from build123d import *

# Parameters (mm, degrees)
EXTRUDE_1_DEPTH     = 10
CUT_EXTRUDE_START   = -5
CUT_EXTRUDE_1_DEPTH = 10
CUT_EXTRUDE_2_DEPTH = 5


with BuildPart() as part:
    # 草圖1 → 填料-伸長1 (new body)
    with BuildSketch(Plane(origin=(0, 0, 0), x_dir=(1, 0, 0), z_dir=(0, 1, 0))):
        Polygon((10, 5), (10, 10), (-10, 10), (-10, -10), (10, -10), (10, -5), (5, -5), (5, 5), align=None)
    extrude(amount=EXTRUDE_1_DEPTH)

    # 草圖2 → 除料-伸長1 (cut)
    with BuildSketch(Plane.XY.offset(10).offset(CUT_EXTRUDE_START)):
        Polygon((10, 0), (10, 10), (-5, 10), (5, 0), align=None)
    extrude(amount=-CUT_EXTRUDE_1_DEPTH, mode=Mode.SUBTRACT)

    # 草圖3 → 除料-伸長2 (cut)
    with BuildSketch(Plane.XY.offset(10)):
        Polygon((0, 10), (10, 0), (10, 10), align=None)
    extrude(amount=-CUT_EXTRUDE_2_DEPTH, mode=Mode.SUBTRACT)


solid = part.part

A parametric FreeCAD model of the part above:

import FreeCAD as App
import Part
import Sketcher

V = App.Vector

doc = App.newDocument("Part")
params = doc.addObject("Spreadsheet::Sheet", "Params")
for row, (alias, value) in enumerate([
    ("sketch1_width", "20 mm"),
    ("sketch1_width2", "5 mm"),
    ("pad1_length", "10 mm"),
    ("sketch2_width", "15 mm"),
    ("sketch2_width2", "5 mm"),
    ("sketch2_height", "10 mm"),
    ("pocket1_length", "10 mm"),
    ("sketch3_width", "10 mm"),
    ("pocket2_length", "5 mm"),
], start=1):
    params.set(f"A{row}", alias)
    params.set(f"B{row}", "=" + value)
    params.setAlias(f"B{row}", alias)

body = doc.addObject("PartDesign::Body", "Body")

# Sketch on XZ plane
sketch1 = body.newObject("Sketcher::SketchObject", "Sketch")
sketch1.AttachmentSupport = (doc.getObject("XZ_Plane"), [""])
sketch1.MapMode = "FlatFace"
sketch1.addGeometry([
    Part.LineSegment(V(10, -5, 0), V(10, -10, 0)),  # 0
    Part.LineSegment(V(10, -10, 0), V(-10, -10, 0)),  # 1
    Part.LineSegment(V(-10, -10, 0), V(-10, 10, 0)),  # 2
    Part.LineSegment(V(-10, 10, 0), V(10, 10, 0)),  # 3
    Part.LineSegment(V(10, 10, 0), V(10, 5, 0)),  # 4
    Part.LineSegment(V(10, 5, 0), V(5, 5, 0)),  # 5
    Part.LineSegment(V(5, 5, 0), V(5, -5, 0)),  # 6
    Part.LineSegment(V(5, -5, 0), V(10, -5, 0)),  # 7
], False)
sketch1.addConstraint([
    Sketcher.Constraint("Coincident", 0, 2, 1, 1),
    Sketcher.Constraint("Coincident", 1, 2, 2, 1),
    Sketcher.Constraint("Coincident", 2, 2, 3, 1),
    Sketcher.Constraint("Coincident", 3, 2, 4, 1),
    Sketcher.Constraint("Coincident", 4, 2, 5, 1),
    Sketcher.Constraint("Coincident", 5, 2, 6, 1),
    Sketcher.Constraint("Coincident", 6, 2, 7, 1),
    Sketcher.Constraint("Coincident", 7, 2, 0, 1),
    Sketcher.Constraint("Vertical", 0),
    Sketcher.Constraint("Horizontal", 1),
    Sketcher.Constraint("Vertical", 2),
    Sketcher.Constraint("Horizontal", 3),
    Sketcher.Constraint("Vertical", 4),
    Sketcher.Constraint("Horizontal", 5),
    Sketcher.Constraint("Vertical", 6),
    Sketcher.Constraint("Horizontal", 7),
    Sketcher.Constraint("Symmetric", 0, 2, 2, 2, -1, 1),
    Sketcher.Constraint("Symmetric", 4, 2, 7, 2, -1),
    Sketcher.Constraint("Equal", 7, 0),
    Sketcher.Constraint("Equal", 3, 2),
    Sketcher.Constraint("DistanceX", 1, 2, 1, 1, 20.0),
    Sketcher.Constraint("DistanceX", 5, 2, 5, 1, 5.0),
])
sketch1.setExpression("Constraints[20]", "Params.sketch1_width")
sketch1.setExpression("Constraints[21]", "Params.sketch1_width2")
pad1 = body.newObject("PartDesign::Pad", "Pad")
pad1.Profile = sketch1
pad1.setExpression("Length", "Params.pad1_length")
pad1.Reversed = True

# Sketch on XY plane
sketch2 = body.newObject("Sketcher::SketchObject", "Sketch001")
sketch2.AttachmentSupport = (doc.getObject("XY_Plane"), [""])
sketch2.MapMode = "FlatFace"
sketch2.AttachmentOffset = App.Placement(V(0, 0, 5), App.Rotation())
sketch2.addGeometry([
    Part.LineSegment(V(10, 0, 0), V(10, 10, 0)),
    Part.LineSegment(V(10, 10, 0), V(-5, 10, 0)),
    Part.LineSegment(V(-5, 10, 0), V(5, 0, 0)),
    Part.LineSegment(V(5, 0, 0), V(10, 0, 0)),
], False)
sketch2.addConstraint([
    Sketcher.Constraint("Coincident", 0, 2, 1, 1),
    Sketcher.Constraint("Coincident", 1, 2, 2, 1),
    Sketcher.Constraint("Coincident", 2, 2, 3, 1),
    Sketcher.Constraint("Coincident", 3, 2, 0, 1),
    Sketcher.Constraint("Vertical", 0),
    Sketcher.Constraint("Horizontal", 1),
    Sketcher.Constraint("Horizontal", 3),
    Sketcher.Constraint("PointOnObject", 2, 2, -1),
    Sketcher.Constraint("DistanceX", 1, 2, 1, 1, 15.0),
    Sketcher.Constraint("DistanceX", 3, 1, 3, 2, 5.0),
    Sketcher.Constraint("DistanceY", 0, 1, 0, 2, 10.0),
    Sketcher.Constraint("DistanceX", -1, 1, 0, 2, 10.0),
])
sketch2.setExpression("Constraints[8]", "Params.sketch2_width")
sketch2.setExpression("Constraints[9]", "Params.sketch2_width2")
sketch2.setExpression("Constraints[10]", "Params.sketch2_height")
pocket1 = body.newObject("PartDesign::Pocket", "Pocket")
pocket1.Profile = sketch2
pocket1.setExpression("Length", "Params.pocket1_length")

# Sketch on XY plane
sketch3 = body.newObject("Sketcher::SketchObject", "Sketch002")
sketch3.AttachmentSupport = (doc.getObject("XY_Plane"), [""])
sketch3.MapMode = "FlatFace"
sketch3.AttachmentOffset = App.Placement(V(0, 0, 10), App.Rotation())
sketch3.addGeometry([
    Part.LineSegment(V(0, 10, 0), V(10, 0, 0)),
    Part.LineSegment(V(10, 0, 0), V(10, 10, 0)),
    Part.LineSegment(V(10, 10, 0), V(0, 10, 0)),
], False)
sketch3.addConstraint([
    Sketcher.Constraint("Coincident", 0, 2, 1, 1),
    Sketcher.Constraint("Coincident", 1, 2, 2, 1),
    Sketcher.Constraint("Coincident", 2, 2, 0, 1),
    Sketcher.Constraint("Vertical", 1),
    Sketcher.Constraint("Horizontal", 2),
    Sketcher.Constraint("PointOnObject", 0, 2, -1),
    Sketcher.Constraint("PointOnObject", 2, 2, -2),
    Sketcher.Constraint("Equal", 2, 1),
    Sketcher.Constraint("DistanceX", 2, 2, 2, 1, 10.0),
])
sketch3.setExpression("Constraints[8]", "Params.sketch3_width")
pocket2 = body.newObject("PartDesign::Pocket", "Pocket001")
pocket2.Profile = sketch3
pocket2.setExpression("Length", "Params.pocket2_length")

doc.recompute()
